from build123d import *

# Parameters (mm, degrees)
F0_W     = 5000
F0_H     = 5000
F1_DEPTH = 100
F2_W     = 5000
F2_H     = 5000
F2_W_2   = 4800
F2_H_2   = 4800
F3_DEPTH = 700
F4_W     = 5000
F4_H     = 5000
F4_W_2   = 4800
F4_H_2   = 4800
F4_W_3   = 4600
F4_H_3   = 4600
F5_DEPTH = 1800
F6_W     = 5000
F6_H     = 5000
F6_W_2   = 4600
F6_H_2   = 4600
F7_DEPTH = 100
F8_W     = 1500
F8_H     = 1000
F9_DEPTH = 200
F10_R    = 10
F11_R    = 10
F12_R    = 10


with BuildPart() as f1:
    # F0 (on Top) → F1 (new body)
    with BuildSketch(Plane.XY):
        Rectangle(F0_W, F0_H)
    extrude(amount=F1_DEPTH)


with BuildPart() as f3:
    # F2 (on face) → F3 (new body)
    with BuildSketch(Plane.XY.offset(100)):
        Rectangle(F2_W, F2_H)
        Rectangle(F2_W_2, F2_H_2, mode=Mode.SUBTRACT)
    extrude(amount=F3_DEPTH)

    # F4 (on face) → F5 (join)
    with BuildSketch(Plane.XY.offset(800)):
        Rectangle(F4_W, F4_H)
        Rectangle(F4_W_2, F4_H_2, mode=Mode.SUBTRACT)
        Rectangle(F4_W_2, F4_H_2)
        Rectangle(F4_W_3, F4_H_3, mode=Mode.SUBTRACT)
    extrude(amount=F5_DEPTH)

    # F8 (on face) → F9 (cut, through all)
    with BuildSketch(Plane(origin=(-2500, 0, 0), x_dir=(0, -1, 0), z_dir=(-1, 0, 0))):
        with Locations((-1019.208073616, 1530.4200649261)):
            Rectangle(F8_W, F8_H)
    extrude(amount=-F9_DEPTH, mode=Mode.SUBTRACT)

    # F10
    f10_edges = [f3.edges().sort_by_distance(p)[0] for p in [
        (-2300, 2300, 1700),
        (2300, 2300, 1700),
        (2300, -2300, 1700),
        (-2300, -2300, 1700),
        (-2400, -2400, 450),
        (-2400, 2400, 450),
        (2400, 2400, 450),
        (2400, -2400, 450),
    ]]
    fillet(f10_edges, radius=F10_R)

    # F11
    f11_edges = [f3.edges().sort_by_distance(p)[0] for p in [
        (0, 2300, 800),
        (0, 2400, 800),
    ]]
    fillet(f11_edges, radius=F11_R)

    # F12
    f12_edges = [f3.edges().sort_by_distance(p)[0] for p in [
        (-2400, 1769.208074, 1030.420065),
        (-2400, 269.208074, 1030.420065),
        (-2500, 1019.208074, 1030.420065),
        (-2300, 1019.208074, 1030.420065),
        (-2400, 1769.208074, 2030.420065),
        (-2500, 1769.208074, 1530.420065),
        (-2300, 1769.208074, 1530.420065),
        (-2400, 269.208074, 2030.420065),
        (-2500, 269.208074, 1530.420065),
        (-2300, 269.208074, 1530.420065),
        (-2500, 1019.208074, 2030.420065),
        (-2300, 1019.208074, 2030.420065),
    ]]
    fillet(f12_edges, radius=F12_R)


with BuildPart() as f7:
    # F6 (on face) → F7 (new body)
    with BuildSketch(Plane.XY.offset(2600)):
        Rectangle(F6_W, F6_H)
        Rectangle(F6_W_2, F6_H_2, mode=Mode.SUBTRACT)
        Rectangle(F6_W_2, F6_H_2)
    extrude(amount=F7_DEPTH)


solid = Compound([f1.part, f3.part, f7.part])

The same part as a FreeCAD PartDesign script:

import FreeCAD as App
import Part
import Sketcher
Q = App.Units.Quantity


def edges_at(feature, points):
    """Names of the edges that pass closest to the given points."""
    edges = feature.Shape.Edges
    near = lambda p: min(range(len(edges)), key=lambda i: edges[i].distToShape(Part.Vertex(*p))[0])
    return sorted({f"Edge{near(p) + 1}" for p in points})


def add_polygon(sketch, points):
    """Adds a closed chain of lines whose ends are joined by coincident constraints."""
    first, n = sketch.GeometryCount, len(points)
    for a, b in zip(points, points[1:] + points[:1]):
        sketch.addGeometry(Part.LineSegment(App.Vector(*a, 0), App.Vector(*b, 0)), False)
    for i in range(n):
        sketch.addConstraint(Sketcher.Constraint("Coincident", first + i, 2, first + (i + 1) % n, 1))

doc = App.newDocument("Part")
params = doc.addObject("Spreadsheet::Sheet", "Params")
for row, (alias, value) in enumerate([
    ("sketch1_width", "5000 mm"),
    ("pad1_length", "100 mm"),
    ("sketch2_width", "5000 mm"),
    ("sketch2_width2", "4800 mm"),
    ("pad2_length", "700 mm"),
    ("sketch3_width", "5000 mm"),
    ("sketch3_width2", "4600 mm"),
    ("pad3_length", "1800 mm"),
    ("sketch4_width", "1500 mm"),
    ("sketch4_height", "1000 mm"),
    ("pocket1_length", "200 mm"),
    ("fillet_radius", "10 mm"),
    ("fillet2_radius", "10 mm"),
    ("fillet3_radius", "10 mm"),
    ("sketch5_width", "5000 mm"),
    ("pad4_length", "100 mm"),
], start=1):
    params.set(f"A{row}", alias)
    params.set(f"B{row}", "=" + value)
    params.setAlias(f"B{row}", alias)

body = doc.addObject("PartDesign::Body", "Body")

sketch1 = body.newObject("Sketcher::SketchObject", "Sketch")
sketch1.AttachmentSupport = (doc.getObject("XY_Plane"), [""])
sketch1.MapMode = "FlatFace"
add_polygon(sketch1, [(-2500, 2500), (-2500, -2500), (2500, -2500), (2500, 2500)])
sketch1.addConstraint([
    Sketcher.Constraint("Vertical", 0),
    Sketcher.Constraint("Horizontal", 1),
    Sketcher.Constraint("Vertical", 2),
    Sketcher.Constraint("Horizontal", 3),
    Sketcher.Constraint("Symmetric", 0, 2, 2, 2, -1, 1),
    Sketcher.Constraint("Equal", 3, 0),
    Sketcher.Constraint("DistanceX", 1, 1, 1, 2, Q("5000 mm")),
])
sketch1.setExpression("Constraints[10]", "Params.sketch1_width")
pad1 = body.newObject("PartDesign::Pad", "Pad")
pad1.Profile = sketch1
pad1.setExpression("Length", "Params.pad1_length")
body2 = doc.addObject("PartDesign::Body", "Body001")

sketch2 = body2.newObject("Sketcher::SketchObject", "Sketch001")
sketch2.AttachmentSupport = (doc.getObject("XY_Plane001"), [""])
sketch2.MapMode = "FlatFace"
sketch2.AttachmentOffset = App.Placement(App.Vector(0, 0, 100), App.Rotation())
add_polygon(sketch2, [(-2500, 2500), (-2500, -2500), (2500, -2500), (2500, 2500)])
add_polygon(sketch2, [(2400, -2400), (-2400, -2400), (-2400, 2400), (2400, 2400)])
sketch2.addConstraint([
    Sketcher.Constraint("Vertical", 0),
    Sketcher.Constraint("Horizontal", 1),
    Sketcher.Constraint("Vertical", 2),
    Sketcher.Constraint("Horizontal", 3),
    Sketcher.Constraint("Horizontal", 4),
    Sketcher.Constraint("Vertical", 5),
    Sketcher.Constraint("Horizontal", 6),
    Sketcher.Constraint("Vertical", 7),
    Sketcher.Constraint("Symmetric", 0, 2, 2, 2, -1, 1),
    Sketcher.Constraint("Symmetric", 4, 2, 6, 2, -1, 1),
    Sketcher.Constraint("Equal", 3, 0),
    Sketcher.Constraint("Equal", 6, 5),
    Sketcher.Constraint("DistanceX", 1, 1, 1, 2, Q("5000 mm")),
    Sketcher.Constraint("DistanceX", 4, 2, 4, 1, Q("4800 mm")),
])
sketch2.setExpression("Constraints[20]", "Params.sketch2_width")
sketch2.setExpression("Constraints[21]", "Params.sketch2_width2")
pad2 = body2.newObject("PartDesign::Pad", "Pad001")
pad2.Profile = sketch2
pad2.setExpression("Length", "Params.pad2_length")

sketch3 = body2.newObject("Sketcher::SketchObject", "Sketch002")
sketch3.AttachmentSupport = (doc.getObject("XY_Plane001"), [""])
sketch3.MapMode = "FlatFace"
sketch3.AttachmentOffset = App.Placement(App.Vector(0, 0, 800), App.Rotation())
add_polygon(sketch3, [(-2500, 2500), (-2500, -2500), (2500, -2500), (2500, 2500)])
add_polygon(sketch3, [(2300, -2300), (-2300, -2300), (-2300, 2300), (2300, 2300)])
sketch3.addConstraint([
    Sketcher.Constraint("Vertical", 0),
    Sketcher.Constraint("Horizontal", 1),
    Sketcher.Constraint("Vertical", 2),
    Sketcher.Constraint("Horizontal", 3),
    Sketcher.Constraint("Horizontal", 4),
    Sketcher.Constraint("Vertical", 5),
    Sketcher.Constraint("Horizontal", 6),
    Sketcher.Constraint("Vertical", 7),
    Sketcher.Constraint("Symmetric", 0, 2, 2, 2, -1, 1),
    Sketcher.Constraint("Symmetric", 4, 2, 6, 2, -1, 1),
    Sketcher.Constraint("Equal", 3, 0),
    Sketcher.Constraint("Equal", 6, 5),
    Sketcher.Constraint("DistanceX", 1, 1, 1, 2, Q("5000 mm")),
    Sketcher.Constraint("DistanceX", 4, 2, 4, 1, Q("4600 mm")),
])
sketch3.setExpression("Constraints[20]", "Params.sketch3_width")
sketch3.setExpression("Constraints[21]", "Params.sketch3_width2")
pad3 = body2.newObject("PartDesign::Pad", "Pad002")
pad3.Profile = sketch3
pad3.setExpression("Length", "Params.pad3_length")

sketch4 = body2.newObject("Sketcher::SketchObject", "Sketch003")
sketch4.AttachmentSupport = (doc.getObject("YZ_Plane001"), [""])
sketch4.MapMode = "FlatFace"
sketch4.AttachmentOffset = App.Placement(App.Vector(0, 0, -2500), App.Rotation())
add_polygon(sketch4, [(1769, 2030), (1769, 1030), (269, 1030), (269, 2030)])
sketch4.addConstraint([
    Sketcher.Constraint("Vertical", 0),
    Sketcher.Constraint("Horizontal", 1),
    Sketcher.Constraint("Vertical", 2),
    Sketcher.Constraint("Horizontal", 3),
    Sketcher.Constraint("DistanceX", 1, 2, 1, 1, Q("1500 mm")),
    Sketcher.Constraint("DistanceY", 0, 2, 0, 1, Q("1000 mm")),
    Sketcher.Constraint("DistanceX", -1, 1, 0, 2, Q("1769.208074 mm")),
    Sketcher.Constraint("DistanceY", -1, 1, 0, 2, Q("1030.420065 mm")),
])
sketch4.setExpression("Constraints[8]", "Params.sketch4_width")
sketch4.setExpression("Constraints[9]", "Params.sketch4_height")
pocket1 = body2.newObject("PartDesign::Pocket", "Pocket")
pocket1.Profile = sketch4
pocket1.setExpression("Length", "Params.pocket1_length")
pocket1.Reversed = True
doc.recompute()

fillet = body2.newObject("PartDesign::Fillet", "Fillet")
fillet.Base = (pocket1, edges_at(pocket1, [
    (-2300, 2300, 1700),
    (2300, 2300, 1700),
    (2300, -2300, 1700),
    (-2300, -2300, 1700),
    (-2400, -2400, 450),
    (-2400, 2400, 450),
    (2400, 2400, 450),
    (2400, -2400, 450),
]))
fillet.setExpression("Radius", "Params.fillet_radius")
doc.recompute()

fillet2 = body2.newObject("PartDesign::Fillet", "Fillet001")
fillet2.Base = (fillet, edges_at(fillet, [(0, 2300, 800), (0, 2400, 800)]))
fillet2.setExpression("Radius", "Params.fillet2_radius")
doc.recompute()

fillet3 = body2.newObject("PartDesign::Fillet", "Fillet002")
fillet3.Base = (fillet2, edges_at(fillet2, [
    (-2400, 1769.208, 1030.42),
    (-2400, 269.208, 1030.42),
    (-2500, 1019.208, 1030.42),
    (-2300, 1019.208, 1030.42),
    (-2400, 1769.208, 2030.42),
    (-2500, 1769.208, 1530.42),
    (-2300, 1769.208, 1530.42),
    (-2400, 269.208, 2030.42),
    (-2500, 269.208, 1530.42),
    (-2300, 269.208, 1530.42),
    (-2500, 1019.208, 2030.42),
    (-2300, 1019.208, 2030.42),
]))
fillet3.setExpression("Radius", "Params.fillet3_radius")
body3 = doc.addObject("PartDesign::Body", "Body002")

sketch5 = body3.newObject("Sketcher::SketchObject", "Sketch004")
sketch5.AttachmentSupport = (doc.getObject("XY_Plane002"), [""])
sketch5.MapMode = "FlatFace"
sketch5.AttachmentOffset = App.Placement(App.Vector(0, 0, 2600), App.Rotation())
add_polygon(sketch5, [(-2500, 2500), (-2500, -2500), (2500, -2500), (2500, 2500)])
sketch5.addConstraint([
    Sketcher.Constraint("Vertical", 0),
    Sketcher.Constraint("Horizontal", 1),
    Sketcher.Constraint("Vertical", 2),
    Sketcher.Constraint("Horizontal", 3),
    Sketcher.Constraint("Symmetric", 0, 2, 2, 2, -1, 1),
    Sketcher.Constraint("Equal", 3, 0),
    Sketcher.Constraint("DistanceX", 1, 1, 1, 2, Q("5000 mm")),
])
sketch5.setExpression("Constraints[10]", "Params.sketch5_width")
pad4 = body3.newObject("PartDesign::Pad", "Pad003")
pad4.Profile = sketch5
pad4.setExpression("Length", "Params.pad4_length")

doc.recompute()
